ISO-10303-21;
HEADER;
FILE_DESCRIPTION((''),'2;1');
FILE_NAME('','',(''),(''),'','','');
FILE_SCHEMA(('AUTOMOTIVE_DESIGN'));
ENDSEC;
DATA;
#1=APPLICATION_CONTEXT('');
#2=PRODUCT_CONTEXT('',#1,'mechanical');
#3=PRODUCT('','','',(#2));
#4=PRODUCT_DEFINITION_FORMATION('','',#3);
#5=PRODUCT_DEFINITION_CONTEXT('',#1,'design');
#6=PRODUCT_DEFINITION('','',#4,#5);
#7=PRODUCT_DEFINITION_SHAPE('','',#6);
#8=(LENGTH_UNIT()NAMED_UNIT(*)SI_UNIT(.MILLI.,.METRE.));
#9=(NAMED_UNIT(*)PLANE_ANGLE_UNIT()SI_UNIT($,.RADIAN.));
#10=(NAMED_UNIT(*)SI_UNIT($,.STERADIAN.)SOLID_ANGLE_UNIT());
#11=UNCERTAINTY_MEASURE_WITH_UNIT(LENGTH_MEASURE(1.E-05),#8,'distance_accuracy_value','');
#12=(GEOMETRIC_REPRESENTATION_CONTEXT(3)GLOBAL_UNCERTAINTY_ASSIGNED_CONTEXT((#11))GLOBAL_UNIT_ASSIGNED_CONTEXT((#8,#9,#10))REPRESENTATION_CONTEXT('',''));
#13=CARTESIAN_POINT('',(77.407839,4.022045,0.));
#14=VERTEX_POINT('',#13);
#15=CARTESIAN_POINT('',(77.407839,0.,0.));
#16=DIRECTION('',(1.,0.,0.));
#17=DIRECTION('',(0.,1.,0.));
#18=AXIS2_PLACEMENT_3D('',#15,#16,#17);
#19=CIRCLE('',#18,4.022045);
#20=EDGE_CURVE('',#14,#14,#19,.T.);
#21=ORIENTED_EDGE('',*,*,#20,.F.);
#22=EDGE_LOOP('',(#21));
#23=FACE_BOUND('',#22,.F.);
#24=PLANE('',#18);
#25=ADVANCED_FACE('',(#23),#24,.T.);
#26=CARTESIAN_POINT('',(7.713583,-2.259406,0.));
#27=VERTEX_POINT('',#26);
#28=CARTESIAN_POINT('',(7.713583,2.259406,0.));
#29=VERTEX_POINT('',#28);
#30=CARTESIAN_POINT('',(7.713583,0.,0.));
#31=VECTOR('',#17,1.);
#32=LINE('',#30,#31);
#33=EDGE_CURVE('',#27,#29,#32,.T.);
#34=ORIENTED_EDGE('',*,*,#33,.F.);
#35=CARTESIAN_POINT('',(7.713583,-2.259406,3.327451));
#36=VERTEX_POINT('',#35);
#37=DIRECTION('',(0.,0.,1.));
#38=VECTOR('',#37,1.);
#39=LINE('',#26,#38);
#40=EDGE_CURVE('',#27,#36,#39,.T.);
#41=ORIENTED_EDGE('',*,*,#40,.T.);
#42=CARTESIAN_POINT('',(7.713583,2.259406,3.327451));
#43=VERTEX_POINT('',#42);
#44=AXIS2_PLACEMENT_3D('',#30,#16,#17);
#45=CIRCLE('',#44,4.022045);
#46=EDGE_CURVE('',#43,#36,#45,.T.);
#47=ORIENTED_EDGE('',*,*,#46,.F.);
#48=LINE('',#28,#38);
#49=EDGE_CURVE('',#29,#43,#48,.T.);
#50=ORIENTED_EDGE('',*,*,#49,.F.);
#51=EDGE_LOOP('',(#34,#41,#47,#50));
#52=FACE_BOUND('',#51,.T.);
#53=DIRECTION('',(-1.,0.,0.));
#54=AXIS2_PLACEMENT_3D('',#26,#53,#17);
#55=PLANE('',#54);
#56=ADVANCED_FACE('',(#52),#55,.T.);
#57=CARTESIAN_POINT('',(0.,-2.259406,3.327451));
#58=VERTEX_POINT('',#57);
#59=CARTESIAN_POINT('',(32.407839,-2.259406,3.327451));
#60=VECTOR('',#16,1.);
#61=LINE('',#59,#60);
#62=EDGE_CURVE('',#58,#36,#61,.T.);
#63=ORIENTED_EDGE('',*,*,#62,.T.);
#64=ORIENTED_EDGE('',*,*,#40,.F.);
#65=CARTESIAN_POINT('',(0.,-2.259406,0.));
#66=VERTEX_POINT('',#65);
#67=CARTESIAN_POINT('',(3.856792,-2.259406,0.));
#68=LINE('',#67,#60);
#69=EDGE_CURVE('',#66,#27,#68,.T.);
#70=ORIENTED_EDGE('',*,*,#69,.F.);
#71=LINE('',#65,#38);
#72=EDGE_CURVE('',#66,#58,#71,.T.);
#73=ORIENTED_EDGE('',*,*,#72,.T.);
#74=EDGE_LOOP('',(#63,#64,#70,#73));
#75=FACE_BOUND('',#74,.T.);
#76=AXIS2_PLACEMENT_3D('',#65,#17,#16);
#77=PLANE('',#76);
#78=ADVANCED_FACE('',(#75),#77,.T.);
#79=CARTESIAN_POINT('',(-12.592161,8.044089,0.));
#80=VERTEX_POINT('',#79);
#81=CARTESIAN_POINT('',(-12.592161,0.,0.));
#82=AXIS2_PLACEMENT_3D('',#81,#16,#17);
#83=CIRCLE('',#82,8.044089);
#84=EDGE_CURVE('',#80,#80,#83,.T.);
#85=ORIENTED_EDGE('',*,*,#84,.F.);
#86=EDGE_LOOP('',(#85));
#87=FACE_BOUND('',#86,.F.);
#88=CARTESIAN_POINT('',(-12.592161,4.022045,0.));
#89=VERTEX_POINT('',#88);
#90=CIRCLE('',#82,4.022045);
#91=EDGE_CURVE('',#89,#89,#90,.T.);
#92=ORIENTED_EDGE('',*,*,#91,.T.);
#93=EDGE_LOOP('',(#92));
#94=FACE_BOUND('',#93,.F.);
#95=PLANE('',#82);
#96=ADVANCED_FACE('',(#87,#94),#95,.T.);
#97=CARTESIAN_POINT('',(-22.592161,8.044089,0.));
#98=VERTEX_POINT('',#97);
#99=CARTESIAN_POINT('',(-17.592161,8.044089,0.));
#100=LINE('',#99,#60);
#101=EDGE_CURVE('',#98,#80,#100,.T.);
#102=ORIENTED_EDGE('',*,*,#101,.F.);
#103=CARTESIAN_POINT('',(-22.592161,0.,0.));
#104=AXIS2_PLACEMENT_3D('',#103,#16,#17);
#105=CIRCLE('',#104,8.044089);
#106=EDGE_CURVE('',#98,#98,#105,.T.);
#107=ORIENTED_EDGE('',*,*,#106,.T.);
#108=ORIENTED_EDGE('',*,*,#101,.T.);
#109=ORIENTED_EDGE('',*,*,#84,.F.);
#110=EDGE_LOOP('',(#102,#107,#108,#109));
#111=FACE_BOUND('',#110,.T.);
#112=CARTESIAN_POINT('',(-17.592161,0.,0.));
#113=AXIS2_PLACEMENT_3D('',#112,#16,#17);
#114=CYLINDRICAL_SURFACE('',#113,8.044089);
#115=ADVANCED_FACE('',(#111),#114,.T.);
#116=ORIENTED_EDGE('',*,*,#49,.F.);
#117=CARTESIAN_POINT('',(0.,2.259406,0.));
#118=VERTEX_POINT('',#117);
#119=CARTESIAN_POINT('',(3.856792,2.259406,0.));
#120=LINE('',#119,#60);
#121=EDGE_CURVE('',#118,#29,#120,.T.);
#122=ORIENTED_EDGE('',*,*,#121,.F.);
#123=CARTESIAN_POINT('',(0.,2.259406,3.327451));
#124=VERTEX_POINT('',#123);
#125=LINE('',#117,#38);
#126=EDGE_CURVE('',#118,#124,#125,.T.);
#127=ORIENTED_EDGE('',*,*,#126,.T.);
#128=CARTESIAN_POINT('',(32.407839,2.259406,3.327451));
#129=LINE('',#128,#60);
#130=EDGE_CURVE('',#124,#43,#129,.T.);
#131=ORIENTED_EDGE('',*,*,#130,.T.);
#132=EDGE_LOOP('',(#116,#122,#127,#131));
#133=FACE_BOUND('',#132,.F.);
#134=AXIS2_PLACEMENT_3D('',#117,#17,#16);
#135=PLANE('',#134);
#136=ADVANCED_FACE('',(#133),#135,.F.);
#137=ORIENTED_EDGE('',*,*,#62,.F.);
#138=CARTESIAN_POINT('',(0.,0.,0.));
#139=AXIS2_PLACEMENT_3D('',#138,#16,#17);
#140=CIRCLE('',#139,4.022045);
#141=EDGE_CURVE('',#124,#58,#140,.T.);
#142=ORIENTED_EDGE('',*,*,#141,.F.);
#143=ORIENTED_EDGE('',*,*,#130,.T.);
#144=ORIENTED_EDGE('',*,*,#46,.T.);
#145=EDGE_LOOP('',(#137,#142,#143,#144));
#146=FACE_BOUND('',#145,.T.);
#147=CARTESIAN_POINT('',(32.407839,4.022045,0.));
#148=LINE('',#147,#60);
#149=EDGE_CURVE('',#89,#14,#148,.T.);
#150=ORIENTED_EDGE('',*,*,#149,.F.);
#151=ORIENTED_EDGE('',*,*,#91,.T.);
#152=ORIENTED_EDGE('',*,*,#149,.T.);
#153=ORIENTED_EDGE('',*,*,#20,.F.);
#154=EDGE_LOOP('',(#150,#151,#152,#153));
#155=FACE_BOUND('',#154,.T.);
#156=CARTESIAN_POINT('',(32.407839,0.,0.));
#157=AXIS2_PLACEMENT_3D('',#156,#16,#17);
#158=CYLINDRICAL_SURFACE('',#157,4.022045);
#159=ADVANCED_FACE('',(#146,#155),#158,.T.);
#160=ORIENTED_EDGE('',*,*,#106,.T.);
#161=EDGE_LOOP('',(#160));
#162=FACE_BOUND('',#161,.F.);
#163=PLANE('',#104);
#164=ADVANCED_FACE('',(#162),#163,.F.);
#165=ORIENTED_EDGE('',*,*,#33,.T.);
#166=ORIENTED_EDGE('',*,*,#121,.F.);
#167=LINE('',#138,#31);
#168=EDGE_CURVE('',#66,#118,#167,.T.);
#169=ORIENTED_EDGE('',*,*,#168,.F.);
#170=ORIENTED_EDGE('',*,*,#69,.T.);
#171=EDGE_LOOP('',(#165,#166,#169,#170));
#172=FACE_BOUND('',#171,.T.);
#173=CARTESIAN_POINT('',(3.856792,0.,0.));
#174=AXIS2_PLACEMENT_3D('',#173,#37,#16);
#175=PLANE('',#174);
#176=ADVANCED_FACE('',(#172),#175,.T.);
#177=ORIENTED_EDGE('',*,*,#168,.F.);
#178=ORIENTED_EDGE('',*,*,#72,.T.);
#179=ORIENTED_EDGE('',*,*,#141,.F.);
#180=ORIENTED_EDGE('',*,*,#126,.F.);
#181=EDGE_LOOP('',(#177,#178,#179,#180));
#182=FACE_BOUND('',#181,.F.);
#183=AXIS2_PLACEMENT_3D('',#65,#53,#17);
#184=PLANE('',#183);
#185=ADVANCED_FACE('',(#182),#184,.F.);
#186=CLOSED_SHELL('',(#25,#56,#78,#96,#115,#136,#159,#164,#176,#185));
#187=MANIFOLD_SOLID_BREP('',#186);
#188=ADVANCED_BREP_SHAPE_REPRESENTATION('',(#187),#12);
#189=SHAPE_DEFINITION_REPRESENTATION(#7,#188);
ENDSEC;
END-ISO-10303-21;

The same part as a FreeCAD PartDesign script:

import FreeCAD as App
import Part
import Sketcher


def add_polygon(sketch, points):
    """Adds a closed chain of lines whose ends are joined by coincident constraints."""
    first, n = sketch.GeometryCount, len(points)
    for a, b in zip(points, points[1:] + points[:1]):
        sketch.addGeometry(Part.LineSegment(App.Vector(*a, 0), App.Vector(*b, 0)), False)
    for i in range(n):
        sketch.addConstraint(Sketcher.Constraint("Coincident", first + i, 2, first + (i + 1) % n, 1))

doc = App.newDocument("Part")
params = doc.addObject("Spreadsheet::Sheet", "Params")
for row, (alias, value) in enumerate([
    ("sketch1_width", "100 mm"),
    ("sketch1_width2", "90 mm"),
    ("revolution_angle", "360 deg"),
    ("pocket1_length", "10 mm"),
], start=1):
    params.set(f"A{row}", alias)
    params.set(f"B{row}", "=" + value)
    params.setAlias(f"B{row}", alias)

body = doc.addObject("PartDesign::Body", "Body")

sketch1 = body.newObject("Sketcher::SketchObject", "Sketch")
sketch1.AttachmentSupport = (doc.getObject("XY_Plane"), [""])
sketch1.MapMode = "FlatFace"
add_polygon(sketch1, [(-22.592161, 8.044089), (-22.592161, 0), (77.407839, 0), (77.407839, 4.022045), (-12.592161, 4.022045), (-12.592161, 8.044089)])
sketch1.addConstraint(Sketcher.Constraint("Vertical", 0))
sketch1.addConstraint(Sketcher.Constraint("Horizontal", 1))
sketch1.addConstraint(Sketcher.Constraint("Vertical", 2))
sketch1.addConstraint(Sketcher.Constraint("Horizontal", 3))
sketch1.addConstraint(Sketcher.Constraint("Vertical", 4))
sketch1.addConstraint(Sketcher.Constraint("Horizontal", 5))
sketch1.addConstraint(Sketcher.Constraint("PointOnObject", 0, 2, -1))
sketch1.addConstraint(Sketcher.Constraint("Equal", 2, 4))
sketch1.addConstraint(Sketcher.Constraint("DistanceX", 1, 1, 1, 2, 100.0))
sketch1.addConstraint(Sketcher.Constraint("DistanceX", 3, 2, 3, 1, 90.0))
sketch1.addConstraint(Sketcher.Constraint("DistanceY", 0, 2, 0, 1, 8.044089))
sketch1.addConstraint(Sketcher.Constraint("DistanceX", 0, 2, -1, 1, 22.592161))
sketch1.setExpression("Constraints[14]", "Params.sketch1_width")
sketch1.setExpression("Constraints[15]", "Params.sketch1_width2")
revolution = body.newObject("PartDesign::Revolution", "Revolution")
revolution.Profile = sketch1
revolution.ReferenceAxis = (sketch1, ["H_Axis"])
revolution.setExpression("Angle", "Params.revolution_angle")

sketch2 = body.newObject("Sketcher::SketchObject", "Sketch001")
sketch2.AttachmentSupport = (doc.getObject("XY_Plane"), [""])
sketch2.MapMode = "FlatFace"
add_polygon(sketch2, [(0, 2.259406), (0, -2.259406), (7.713583, -2.259406), (7.713583, 2.259406)])
sketch2.addConstraint(Sketcher.Constraint("Vertical", 0))
sketch2.addConstraint(Sketcher.Constraint("Horizontal", 1))
sketch2.addConstraint(Sketcher.Constraint("Vertical", 2))
sketch2.addConstraint(Sketcher.Constraint("Horizontal", 3))
sketch2.addConstraint(Sketcher.Constraint("Symmetric", 0, 2, 3, 2, -1, 1))
sketch2.addConstraint(Sketcher.Constraint("DistanceY", 0, 2, 0, 1, 4.518812))
sketch2.addConstraint(Sketcher.Constraint("DistanceX", 1, 1, 1, 2, 7.713583))
pocket1 = body.newObject("PartDesign::Pocket", "Pocket")
pocket1.Profile = sketch2
pocket1.setExpression("Length", "Params.pocket1_length")
pocket1.Reversed = True

doc.recompute()
